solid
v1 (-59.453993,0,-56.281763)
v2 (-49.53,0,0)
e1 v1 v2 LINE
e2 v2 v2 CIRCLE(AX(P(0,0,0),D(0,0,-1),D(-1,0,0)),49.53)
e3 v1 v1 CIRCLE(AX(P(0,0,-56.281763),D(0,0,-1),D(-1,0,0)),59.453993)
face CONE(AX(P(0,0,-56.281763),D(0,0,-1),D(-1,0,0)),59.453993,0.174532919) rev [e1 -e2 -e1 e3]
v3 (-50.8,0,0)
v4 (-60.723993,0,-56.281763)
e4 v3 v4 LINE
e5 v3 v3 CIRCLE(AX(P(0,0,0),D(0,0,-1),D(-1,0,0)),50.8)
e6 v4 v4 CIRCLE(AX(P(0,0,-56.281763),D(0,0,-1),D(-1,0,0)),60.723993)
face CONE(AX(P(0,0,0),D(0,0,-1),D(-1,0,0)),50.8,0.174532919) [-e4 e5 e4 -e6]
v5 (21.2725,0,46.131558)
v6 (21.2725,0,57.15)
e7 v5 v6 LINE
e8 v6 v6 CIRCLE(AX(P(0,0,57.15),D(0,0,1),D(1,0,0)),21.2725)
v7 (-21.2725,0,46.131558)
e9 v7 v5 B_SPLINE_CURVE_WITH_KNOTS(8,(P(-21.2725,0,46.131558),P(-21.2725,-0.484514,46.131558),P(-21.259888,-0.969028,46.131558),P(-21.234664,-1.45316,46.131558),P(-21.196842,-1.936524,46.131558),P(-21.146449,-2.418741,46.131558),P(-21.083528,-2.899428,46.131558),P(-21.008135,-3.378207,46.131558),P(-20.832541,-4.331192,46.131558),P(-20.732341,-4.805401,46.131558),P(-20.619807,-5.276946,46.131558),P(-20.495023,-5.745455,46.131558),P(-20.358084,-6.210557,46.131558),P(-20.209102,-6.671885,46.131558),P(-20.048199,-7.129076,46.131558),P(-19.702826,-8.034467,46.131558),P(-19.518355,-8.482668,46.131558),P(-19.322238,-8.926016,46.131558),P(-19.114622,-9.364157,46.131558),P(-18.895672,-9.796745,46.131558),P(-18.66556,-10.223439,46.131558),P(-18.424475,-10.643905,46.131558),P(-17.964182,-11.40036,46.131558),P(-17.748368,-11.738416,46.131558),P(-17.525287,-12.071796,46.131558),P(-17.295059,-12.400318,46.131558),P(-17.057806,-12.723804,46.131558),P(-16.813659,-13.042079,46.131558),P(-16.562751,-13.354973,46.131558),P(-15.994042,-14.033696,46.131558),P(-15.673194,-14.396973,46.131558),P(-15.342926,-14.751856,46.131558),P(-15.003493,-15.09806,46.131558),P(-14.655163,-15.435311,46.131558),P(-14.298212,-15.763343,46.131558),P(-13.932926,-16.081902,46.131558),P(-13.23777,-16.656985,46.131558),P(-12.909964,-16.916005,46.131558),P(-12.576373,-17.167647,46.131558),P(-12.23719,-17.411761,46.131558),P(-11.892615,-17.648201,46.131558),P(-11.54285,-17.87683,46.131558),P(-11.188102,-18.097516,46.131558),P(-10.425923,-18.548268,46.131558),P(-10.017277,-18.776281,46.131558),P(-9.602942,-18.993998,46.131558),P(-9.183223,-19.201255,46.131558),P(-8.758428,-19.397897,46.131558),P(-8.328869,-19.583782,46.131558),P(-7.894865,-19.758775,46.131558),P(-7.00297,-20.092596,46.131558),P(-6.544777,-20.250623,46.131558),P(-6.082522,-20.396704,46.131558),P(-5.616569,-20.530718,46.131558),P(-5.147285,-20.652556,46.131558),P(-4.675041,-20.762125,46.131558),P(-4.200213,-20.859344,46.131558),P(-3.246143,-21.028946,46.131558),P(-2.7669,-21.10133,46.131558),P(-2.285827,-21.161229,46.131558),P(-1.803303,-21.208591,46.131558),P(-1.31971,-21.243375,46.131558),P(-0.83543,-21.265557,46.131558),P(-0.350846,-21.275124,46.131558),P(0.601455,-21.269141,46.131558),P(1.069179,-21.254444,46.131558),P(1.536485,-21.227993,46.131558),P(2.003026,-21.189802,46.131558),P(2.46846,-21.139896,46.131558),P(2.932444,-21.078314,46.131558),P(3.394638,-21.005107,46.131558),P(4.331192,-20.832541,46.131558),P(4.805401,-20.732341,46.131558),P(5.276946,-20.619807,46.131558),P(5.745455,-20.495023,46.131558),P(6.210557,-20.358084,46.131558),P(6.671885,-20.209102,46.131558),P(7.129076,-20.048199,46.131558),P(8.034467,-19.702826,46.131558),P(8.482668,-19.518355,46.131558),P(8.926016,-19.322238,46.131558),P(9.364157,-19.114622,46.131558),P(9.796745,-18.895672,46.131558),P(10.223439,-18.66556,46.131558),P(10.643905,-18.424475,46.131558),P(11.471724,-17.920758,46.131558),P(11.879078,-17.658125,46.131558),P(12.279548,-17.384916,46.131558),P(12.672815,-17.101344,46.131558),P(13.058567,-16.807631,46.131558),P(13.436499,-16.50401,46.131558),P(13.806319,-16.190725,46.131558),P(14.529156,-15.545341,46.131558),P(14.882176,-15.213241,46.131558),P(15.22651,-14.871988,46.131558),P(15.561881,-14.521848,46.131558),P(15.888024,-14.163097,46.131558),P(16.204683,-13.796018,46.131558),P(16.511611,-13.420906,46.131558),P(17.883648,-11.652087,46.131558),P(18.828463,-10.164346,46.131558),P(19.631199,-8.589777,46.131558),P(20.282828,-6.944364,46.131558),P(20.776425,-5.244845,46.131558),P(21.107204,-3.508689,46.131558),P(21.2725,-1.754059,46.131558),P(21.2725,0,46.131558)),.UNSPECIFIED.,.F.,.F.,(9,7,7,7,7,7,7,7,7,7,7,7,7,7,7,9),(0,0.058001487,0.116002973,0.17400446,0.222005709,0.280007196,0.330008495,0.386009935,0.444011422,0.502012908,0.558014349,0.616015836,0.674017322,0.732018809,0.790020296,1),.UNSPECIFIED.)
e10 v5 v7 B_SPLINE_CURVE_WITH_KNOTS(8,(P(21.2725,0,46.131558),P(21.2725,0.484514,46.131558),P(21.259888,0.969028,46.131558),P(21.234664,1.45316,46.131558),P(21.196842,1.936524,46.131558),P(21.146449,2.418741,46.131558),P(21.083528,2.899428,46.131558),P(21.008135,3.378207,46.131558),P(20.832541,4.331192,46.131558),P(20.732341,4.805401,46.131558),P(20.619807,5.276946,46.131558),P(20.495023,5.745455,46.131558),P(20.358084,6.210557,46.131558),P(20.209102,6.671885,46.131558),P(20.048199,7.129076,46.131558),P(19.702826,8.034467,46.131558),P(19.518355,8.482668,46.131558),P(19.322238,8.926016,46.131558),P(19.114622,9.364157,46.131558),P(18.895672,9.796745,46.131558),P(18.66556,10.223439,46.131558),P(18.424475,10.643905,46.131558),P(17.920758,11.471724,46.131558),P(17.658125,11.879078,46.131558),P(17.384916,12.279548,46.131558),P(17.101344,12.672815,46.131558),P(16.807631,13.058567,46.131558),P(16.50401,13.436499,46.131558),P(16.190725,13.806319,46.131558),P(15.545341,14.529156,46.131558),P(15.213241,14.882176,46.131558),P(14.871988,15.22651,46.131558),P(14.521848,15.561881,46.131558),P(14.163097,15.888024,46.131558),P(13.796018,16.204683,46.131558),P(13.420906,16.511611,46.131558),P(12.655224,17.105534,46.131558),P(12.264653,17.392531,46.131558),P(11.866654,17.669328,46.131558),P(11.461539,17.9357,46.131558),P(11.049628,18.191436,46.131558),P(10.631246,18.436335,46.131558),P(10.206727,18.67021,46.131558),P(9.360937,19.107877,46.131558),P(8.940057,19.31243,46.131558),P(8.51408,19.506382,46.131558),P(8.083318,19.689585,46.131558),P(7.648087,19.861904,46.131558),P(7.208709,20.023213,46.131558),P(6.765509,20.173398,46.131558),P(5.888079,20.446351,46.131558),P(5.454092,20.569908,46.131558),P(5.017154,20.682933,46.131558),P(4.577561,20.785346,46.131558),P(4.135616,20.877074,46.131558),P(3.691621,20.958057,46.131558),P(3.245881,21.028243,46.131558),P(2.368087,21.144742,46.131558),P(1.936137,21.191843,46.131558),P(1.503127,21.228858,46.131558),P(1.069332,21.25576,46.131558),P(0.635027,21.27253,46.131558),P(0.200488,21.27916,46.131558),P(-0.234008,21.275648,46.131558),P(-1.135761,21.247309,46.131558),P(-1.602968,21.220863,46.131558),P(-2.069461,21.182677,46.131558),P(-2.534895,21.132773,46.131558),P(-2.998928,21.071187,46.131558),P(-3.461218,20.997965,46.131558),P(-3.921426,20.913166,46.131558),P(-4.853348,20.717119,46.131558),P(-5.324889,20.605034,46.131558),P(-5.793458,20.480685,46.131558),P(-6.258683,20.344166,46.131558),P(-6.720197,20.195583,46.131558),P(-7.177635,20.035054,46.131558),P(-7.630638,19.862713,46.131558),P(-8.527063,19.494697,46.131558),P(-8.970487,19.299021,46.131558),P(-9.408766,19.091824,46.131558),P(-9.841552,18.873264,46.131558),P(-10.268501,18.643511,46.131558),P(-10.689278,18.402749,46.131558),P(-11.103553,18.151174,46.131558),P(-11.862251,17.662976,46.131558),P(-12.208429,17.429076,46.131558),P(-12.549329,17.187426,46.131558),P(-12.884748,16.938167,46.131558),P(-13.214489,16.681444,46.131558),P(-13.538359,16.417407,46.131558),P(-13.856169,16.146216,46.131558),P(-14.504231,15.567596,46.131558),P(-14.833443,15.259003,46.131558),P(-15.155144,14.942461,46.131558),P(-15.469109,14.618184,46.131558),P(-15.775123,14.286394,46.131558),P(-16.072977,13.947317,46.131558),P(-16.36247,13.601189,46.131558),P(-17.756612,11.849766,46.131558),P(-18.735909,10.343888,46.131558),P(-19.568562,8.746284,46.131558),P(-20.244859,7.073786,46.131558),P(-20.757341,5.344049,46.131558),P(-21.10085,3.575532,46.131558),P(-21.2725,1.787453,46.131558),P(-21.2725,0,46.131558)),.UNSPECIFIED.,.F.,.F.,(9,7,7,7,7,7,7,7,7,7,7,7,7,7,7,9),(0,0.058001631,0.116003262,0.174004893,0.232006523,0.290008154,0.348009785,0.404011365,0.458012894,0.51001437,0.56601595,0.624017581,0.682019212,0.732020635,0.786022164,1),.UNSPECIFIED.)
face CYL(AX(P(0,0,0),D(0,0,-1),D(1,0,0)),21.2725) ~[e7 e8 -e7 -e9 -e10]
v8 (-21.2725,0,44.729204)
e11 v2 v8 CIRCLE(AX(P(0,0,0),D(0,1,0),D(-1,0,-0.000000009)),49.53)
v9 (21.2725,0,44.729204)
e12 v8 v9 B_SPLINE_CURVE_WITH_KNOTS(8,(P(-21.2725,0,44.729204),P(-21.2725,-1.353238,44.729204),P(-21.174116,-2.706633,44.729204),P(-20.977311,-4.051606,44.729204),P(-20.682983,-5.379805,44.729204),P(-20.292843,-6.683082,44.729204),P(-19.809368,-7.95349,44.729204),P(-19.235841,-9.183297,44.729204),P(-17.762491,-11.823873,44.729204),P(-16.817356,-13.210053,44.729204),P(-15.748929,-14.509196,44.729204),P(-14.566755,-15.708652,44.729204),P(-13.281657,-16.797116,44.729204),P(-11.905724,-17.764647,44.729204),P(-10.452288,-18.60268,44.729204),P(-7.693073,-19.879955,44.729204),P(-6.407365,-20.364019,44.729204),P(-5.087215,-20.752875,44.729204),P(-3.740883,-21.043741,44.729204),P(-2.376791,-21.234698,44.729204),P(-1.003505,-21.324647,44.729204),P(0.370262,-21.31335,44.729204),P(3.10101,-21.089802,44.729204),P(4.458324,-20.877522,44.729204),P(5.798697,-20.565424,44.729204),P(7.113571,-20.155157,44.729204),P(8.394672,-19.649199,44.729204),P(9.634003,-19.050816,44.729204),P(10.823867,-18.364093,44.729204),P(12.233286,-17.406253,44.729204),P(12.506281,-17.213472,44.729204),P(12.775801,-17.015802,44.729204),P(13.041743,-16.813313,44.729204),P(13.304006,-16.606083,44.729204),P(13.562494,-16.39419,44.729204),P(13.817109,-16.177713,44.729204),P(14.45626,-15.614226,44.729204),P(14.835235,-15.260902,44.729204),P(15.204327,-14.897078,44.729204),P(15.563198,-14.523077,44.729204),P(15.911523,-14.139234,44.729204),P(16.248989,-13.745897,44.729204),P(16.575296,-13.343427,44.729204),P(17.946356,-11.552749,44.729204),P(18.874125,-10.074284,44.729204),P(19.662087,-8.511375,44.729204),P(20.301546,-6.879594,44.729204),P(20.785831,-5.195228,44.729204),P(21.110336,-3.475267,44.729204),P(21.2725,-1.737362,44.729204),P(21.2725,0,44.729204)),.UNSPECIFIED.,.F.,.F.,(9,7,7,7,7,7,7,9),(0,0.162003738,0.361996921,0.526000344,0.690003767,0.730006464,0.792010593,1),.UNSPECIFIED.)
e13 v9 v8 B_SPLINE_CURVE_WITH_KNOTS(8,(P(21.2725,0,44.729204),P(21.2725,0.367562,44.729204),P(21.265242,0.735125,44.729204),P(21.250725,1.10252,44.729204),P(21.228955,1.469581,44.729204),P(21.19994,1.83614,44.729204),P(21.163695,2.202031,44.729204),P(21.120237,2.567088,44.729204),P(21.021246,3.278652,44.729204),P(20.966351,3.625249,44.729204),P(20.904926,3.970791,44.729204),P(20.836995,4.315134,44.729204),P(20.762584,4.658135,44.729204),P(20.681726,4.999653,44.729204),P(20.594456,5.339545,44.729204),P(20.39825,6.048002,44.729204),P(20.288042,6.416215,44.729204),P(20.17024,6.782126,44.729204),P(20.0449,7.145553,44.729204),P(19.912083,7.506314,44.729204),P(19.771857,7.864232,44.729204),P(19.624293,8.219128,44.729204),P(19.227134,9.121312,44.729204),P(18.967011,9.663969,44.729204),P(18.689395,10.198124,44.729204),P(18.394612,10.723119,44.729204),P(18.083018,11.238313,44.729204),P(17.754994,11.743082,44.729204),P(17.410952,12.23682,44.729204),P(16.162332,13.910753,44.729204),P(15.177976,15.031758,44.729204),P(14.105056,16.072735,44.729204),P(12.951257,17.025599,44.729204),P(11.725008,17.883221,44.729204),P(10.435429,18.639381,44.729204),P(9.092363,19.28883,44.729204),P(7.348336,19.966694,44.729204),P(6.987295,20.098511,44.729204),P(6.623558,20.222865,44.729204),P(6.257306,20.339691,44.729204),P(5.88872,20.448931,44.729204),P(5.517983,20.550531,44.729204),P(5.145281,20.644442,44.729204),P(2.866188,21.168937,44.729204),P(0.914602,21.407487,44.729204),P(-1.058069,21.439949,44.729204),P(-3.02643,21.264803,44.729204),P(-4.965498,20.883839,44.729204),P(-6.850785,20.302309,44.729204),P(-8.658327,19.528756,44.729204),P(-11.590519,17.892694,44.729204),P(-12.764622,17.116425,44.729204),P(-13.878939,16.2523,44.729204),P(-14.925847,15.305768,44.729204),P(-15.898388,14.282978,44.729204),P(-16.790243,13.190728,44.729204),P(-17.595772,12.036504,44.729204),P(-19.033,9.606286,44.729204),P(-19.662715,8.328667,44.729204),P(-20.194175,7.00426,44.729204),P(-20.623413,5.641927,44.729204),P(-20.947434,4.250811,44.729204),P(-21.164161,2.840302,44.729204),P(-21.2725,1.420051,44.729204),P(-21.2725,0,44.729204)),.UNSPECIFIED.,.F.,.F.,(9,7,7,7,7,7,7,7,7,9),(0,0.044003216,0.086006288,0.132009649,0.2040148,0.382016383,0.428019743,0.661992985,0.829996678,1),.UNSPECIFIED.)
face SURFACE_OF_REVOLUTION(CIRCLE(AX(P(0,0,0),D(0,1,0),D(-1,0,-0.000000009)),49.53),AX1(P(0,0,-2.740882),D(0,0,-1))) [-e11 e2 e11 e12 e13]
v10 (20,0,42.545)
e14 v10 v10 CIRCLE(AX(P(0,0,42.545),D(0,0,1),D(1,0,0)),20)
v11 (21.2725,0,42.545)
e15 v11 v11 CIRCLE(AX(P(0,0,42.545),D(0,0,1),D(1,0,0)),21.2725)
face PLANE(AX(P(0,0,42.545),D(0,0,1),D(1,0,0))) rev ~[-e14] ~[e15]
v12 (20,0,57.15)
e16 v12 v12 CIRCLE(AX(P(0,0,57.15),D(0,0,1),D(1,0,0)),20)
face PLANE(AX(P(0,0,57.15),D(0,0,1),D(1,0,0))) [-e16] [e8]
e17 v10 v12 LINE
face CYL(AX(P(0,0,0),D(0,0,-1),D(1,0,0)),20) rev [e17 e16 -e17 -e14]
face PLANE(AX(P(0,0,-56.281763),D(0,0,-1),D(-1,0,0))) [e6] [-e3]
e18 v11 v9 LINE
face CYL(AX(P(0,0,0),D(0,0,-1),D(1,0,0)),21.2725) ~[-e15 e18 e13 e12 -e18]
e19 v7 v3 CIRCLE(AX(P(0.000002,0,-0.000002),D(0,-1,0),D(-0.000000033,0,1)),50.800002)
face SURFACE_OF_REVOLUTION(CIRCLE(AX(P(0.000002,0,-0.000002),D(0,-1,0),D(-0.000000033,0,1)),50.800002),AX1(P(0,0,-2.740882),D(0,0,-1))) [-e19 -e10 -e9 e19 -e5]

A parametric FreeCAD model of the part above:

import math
import FreeCAD as App
import Part
import Sketcher
from FreeCAD import Vector
Q = App.Units.Quantity

doc = App.newDocument("Part")
body = doc.addObject("PartDesign::Body", "Body")

# Sketch on XZ plane
sketch1 = body.newObject("Sketcher::SketchObject", "Sketch")
sketch1.AttachmentSupport = (doc.getObject("XZ_Plane"), [""])
sketch1.MapMode = "FlatFace"
sketch1.addGeometry(Part.LineSegment(Vector(0, 49.53, 0), Vector(0, 50.8, 0)), False)
sketch1.addGeometry(Part.ArcOfCircle(Part.Circle(Vector(0.000002, -0.000002, 0), Vector(0, 0, 1), 50.800002), math.radians(90.000002), math.radians(179.999998)), False)
sketch1.addGeometry(Part.LineSegment(Vector(-50.8, 0, 0), Vector(-60.723993, -56.281763, 0)), False)
sketch1.addGeometry(Part.LineSegment(Vector(-60.723993, -56.281763, 0), Vector(-59.453993, -56.281763, 0)), False)
sketch1.addGeometry(Part.LineSegment(Vector(-59.453993, -56.281763, 0), Vector(-49.53, 0, 0)), False)
sketch1.addGeometry(Part.ArcOfCircle(Part.Circle(Vector(0, 0, 0), Vector(0, 0, 1), 49.53), math.radians(89.999999), math.radians(180.000001)), False)
sketch1.addConstraint(Sketcher.Constraint("Coincident", 0, 2, 1, 1))
sketch1.addConstraint(Sketcher.Constraint("Coincident", 1, 2, 2, 1))
sketch1.addConstraint(Sketcher.Constraint("Coincident", 2, 2, 3, 1))
sketch1.addConstraint(Sketcher.Constraint("Coincident", 3, 2, 4, 1))
sketch1.addConstraint(Sketcher.Constraint("Coincident", 4, 2, 5, 2))
sketch1.addConstraint(Sketcher.Constraint("Coincident", 5, 1, 0, 1))
sketch1.addConstraint(Sketcher.Constraint("Vertical", 0))
sketch1.addConstraint(Sketcher.Constraint("Horizontal", 3))
sketch1.addConstraint(Sketcher.Constraint("Coincident", 1, 3, -1, 1))
sketch1.addConstraint(Sketcher.Constraint("Coincident", 5, 3, -1, 1))
sketch1.addConstraint(Sketcher.Constraint("PointOnObject", 0, 2, -2))
sketch1.addConstraint(Sketcher.Constraint("PointOnObject", 1, 2, -1))
sketch1.addConstraint(Sketcher.Constraint("PointOnObject", 4, 2, -1))
sketch1.addConstraint(Sketcher.Constraint("Parallel", 2, 4))
sketch1.addConstraint(Sketcher.Constraint("Radius", 1, Q("2.0000001 in")))
sketch1.addConstraint(Sketcher.Constraint("Radius", 5, Q("1.95 in")))
sketch1.addConstraint(Sketcher.Constraint("Angle", 2, Q("-100 deg")))
sketch1.addConstraint(Sketcher.Constraint("Distance", 2, Q("2.25 in")))
revolution = body.newObject("PartDesign::Revolution", "Revolution")
revolution.Profile = sketch1
revolution.ReferenceAxis = (sketch1, ["V_Axis"])
revolution.Angle = 360

# Sketch on XY plane
sketch2 = body.newObject("Sketcher::SketchObject", "Sketch001")
sketch2.AttachmentSupport = (doc.getObject("XY_Plane"), [""])
sketch2.MapMode = "FlatFace"
sketch2.addGeometry(Part.Circle(Vector(0, 0, 0), Vector(0, 0, 1), 21.2725), False)
sketch2.addGeometry(Part.Circle(Vector(0, 0, 0), Vector(0, 0, 1), 20), False)
sketch2.addConstraint(Sketcher.Constraint("Coincident", 0, 3, -1, 1))
sketch2.addConstraint(Sketcher.Constraint("Coincident", 1, 3, -1, 1))
sketch2.addConstraint(Sketcher.Constraint("Diameter", 0, Q("1.675 in")))
sketch2.addConstraint(Sketcher.Constraint("Diameter", 1, Q("40 mm")))
pad1 = body.newObject("PartDesign::Pad", "Pad")
pad1.Profile = sketch2
pad1.Length = Q("2.25 in")

# Sketch on XY plane
sketch3 = body.newObject("Sketcher::SketchObject", "Sketch002")
sketch3.AttachmentSupport = (doc.getObject("XY_Plane"), [""])
sketch3.MapMode = "FlatFace"
sketch3.addGeometry(Part.Circle(Vector(0, 0, 0), Vector(0, 0, 1), 20), False)
sketch3.addConstraint(Sketcher.Constraint("Coincident", 0, 3, -1, 1))
sketch3.addConstraint(Sketcher.Constraint("Diameter", 0, Q("40 mm")))
pocket1 = body.newObject("PartDesign::Pocket", "Pocket")
pocket1.Profile = sketch3
pocket1.Type = "ThroughAll"
pocket1.Reversed = True

# Sketch on XY plane
sketch4 = body.newObject("Sketcher::SketchObject", "Sketch003")
sketch4.AttachmentSupport = (doc.getObject("XY_Plane"), [""])
sketch4.MapMode = "FlatFace"
sketch4.addGeometry(Part.Circle(Vector(0, 0, 0), Vector(0, 0, 1), 21.2725), False)
sketch4.addGeometry(Part.Circle(Vector(0, 0, 0), Vector(0, 0, 1), 20), False)
sketch4.addConstraint(Sketcher.Constraint("Coincident", 0, 3, -1, 1))
sketch4.addConstraint(Sketcher.Constraint("Coincident", 1, 3, -1, 1))
sketch4.addConstraint(Sketcher.Constraint("Diameter", 0, Q("1.675 in")))
sketch4.addConstraint(Sketcher.Constraint("Diameter", 1, Q("40 mm")))
pocket2 = body.newObject("PartDesign::Pocket", "Pocket001")
pocket2.Profile = sketch4
pocket2.Length = Q("1.675 in")
pocket2.Reversed = True

doc.recompute()
